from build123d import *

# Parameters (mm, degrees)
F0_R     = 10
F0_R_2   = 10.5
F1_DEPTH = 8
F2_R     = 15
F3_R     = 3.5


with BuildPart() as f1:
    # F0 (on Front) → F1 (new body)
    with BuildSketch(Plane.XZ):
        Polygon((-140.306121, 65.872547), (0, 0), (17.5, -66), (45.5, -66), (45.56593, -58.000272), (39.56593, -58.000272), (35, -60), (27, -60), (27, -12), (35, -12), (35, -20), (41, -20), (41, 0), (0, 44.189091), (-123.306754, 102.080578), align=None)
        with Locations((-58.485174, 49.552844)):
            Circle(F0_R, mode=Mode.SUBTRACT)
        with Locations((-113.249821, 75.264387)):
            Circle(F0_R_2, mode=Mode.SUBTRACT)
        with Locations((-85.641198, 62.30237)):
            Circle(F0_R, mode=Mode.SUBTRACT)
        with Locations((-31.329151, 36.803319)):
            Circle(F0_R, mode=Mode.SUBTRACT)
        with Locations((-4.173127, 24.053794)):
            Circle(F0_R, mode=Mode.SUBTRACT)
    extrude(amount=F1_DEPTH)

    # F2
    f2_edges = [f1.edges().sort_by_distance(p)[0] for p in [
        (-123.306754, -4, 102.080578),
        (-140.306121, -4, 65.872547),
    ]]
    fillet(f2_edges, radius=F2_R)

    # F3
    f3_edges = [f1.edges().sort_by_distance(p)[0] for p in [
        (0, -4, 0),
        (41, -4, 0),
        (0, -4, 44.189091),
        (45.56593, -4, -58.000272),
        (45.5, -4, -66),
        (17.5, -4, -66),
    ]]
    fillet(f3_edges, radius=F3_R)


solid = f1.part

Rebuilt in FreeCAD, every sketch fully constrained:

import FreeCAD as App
import Part
import Sketcher
from FreeCAD import Vector
Q = App.Units.Quantity


def edges_at(feature, points):
    """Names of the edges that pass closest to the given points."""
    edges = feature.Shape.Edges
    near = lambda p: min(range(len(edges)), key=lambda i: edges[i].distToShape(Part.Vertex(*p))[0])
    return sorted({f"Edge{near(p) + 1}" for p in points})

doc = App.newDocument("Part")
body = doc.addObject("PartDesign::Body", "Body")

# Sketch on XZ plane
sketch1 = body.newObject("Sketcher::SketchObject", "Sketch")
sketch1.AttachmentSupport = (doc.getObject("XZ_Plane"), [""])
sketch1.MapMode = "FlatFace"
sketch1.addGeometry(Part.LineSegment(Vector(-140.306121, 65.872547, 0), Vector(0, 0, 0)), False)
sketch1.addGeometry(Part.LineSegment(Vector(0, 0, 0), Vector(17.5, -66, 0)), False)
sketch1.addGeometry(Part.LineSegment(Vector(17.5, -66, 0), Vector(45.5, -66, 0)), False)
sketch1.addGeometry(Part.LineSegment(Vector(45.5, -66, 0), Vector(45.56593, -58.000272, 0)), False)
sketch1.addGeometry(Part.LineSegment(Vector(45.56593, -58.000272, 0), Vector(39.56593, -58.000272, 0)), False)
sketch1.addGeometry(Part.LineSegment(Vector(39.56593, -58.000272, 0), Vector(35, -60, 0)), False)
sketch1.addGeometry(Part.LineSegment(Vector(35, -60, 0), Vector(27, -60, 0)), False)
sketch1.addGeometry(Part.LineSegment(Vector(27, -60, 0), Vector(27, -12, 0)), False)
sketch1.addGeometry(Part.LineSegment(Vector(27, -12, 0), Vector(35, -12, 0)), False)
sketch1.addGeometry(Part.LineSegment(Vector(35, -12, 0), Vector(35, -20, 0)), False)
sketch1.addGeometry(Part.LineSegment(Vector(35, -20, 0), Vector(41, -20, 0)), False)
sketch1.addGeometry(Part.LineSegment(Vector(41, -20, 0), Vector(41, 0, 0)), False)
sketch1.addGeometry(Part.LineSegment(Vector(41, 0, 0), Vector(0, 44.189091, 0)), False)
sketch1.addGeometry(Part.LineSegment(Vector(0, 44.189091, 0), Vector(-123.306754, 102.080578, 0)), False)
sketch1.addGeometry(Part.LineSegment(Vector(-123.306754, 102.080578, 0), Vector(-140.306121, 65.872547, 0)), False)
sketch1.addGeometry(Part.Circle(Vector(-4.173127, 24.053794, 0), Vector(0, 0, 1), 10), False)
sketch1.addGeometry(Part.Circle(Vector(-31.329151, 36.803319, 0), Vector(0, 0, 1), 10), False)
sketch1.addGeometry(Part.Circle(Vector(-58.485174, 49.552844, 0), Vector(0, 0, 1), 10), False)
sketch1.addGeometry(Part.Circle(Vector(-85.641198, 62.30237, 0), Vector(0, 0, 1), 10), False)
sketch1.addGeometry(Part.Circle(Vector(-113.249821, 75.264387, 0), Vector(0, 0, 1), 10.5), False)
sketch1.addConstraint(Sketcher.Constraint("Coincident", 0, 2, 1, 1))
sketch1.addConstraint(Sketcher.Constraint("Coincident", 1, 2, 2, 1))
sketch1.addConstraint(Sketcher.Constraint("Coincident", 2, 2, 3, 1))
sketch1.addConstraint(Sketcher.Constraint("Coincident", 3, 2, 4, 1))
sketch1.addConstraint(Sketcher.Constraint("Coincident", 4, 2, 5, 1))
sketch1.addConstraint(Sketcher.Constraint("Coincident", 5, 2, 6, 1))
sketch1.addConstraint(Sketcher.Constraint("Coincident", 6, 2, 7, 1))
sketch1.addConstraint(Sketcher.Constraint("Coincident", 7, 2, 8, 1))
sketch1.addConstraint(Sketcher.Constraint("Coincident", 8, 2, 9, 1))
sketch1.addConstraint(Sketcher.Constraint("Coincident", 9, 2, 10, 1))
sketch1.addConstraint(Sketcher.Constraint("Coincident", 10, 2, 11, 1))
sketch1.addConstraint(Sketcher.Constraint("Coincident", 11, 2, 12, 1))
sketch1.addConstraint(Sketcher.Constraint("Coincident", 12, 2, 13, 1))
sketch1.addConstraint(Sketcher.Constraint("Coincident", 13, 2, 14, 1))
sketch1.addConstraint(Sketcher.Constraint("Coincident", 14, 2, 0, 1))
sketch1.addConstraint(Sketcher.Constraint("Horizontal", 2))
sketch1.addConstraint(Sketcher.Constraint("Horizontal", 4))
sketch1.addConstraint(Sketcher.Constraint("Horizontal", 6))
sketch1.addConstraint(Sketcher.Constraint("Vertical", 7))
sketch1.addConstraint(Sketcher.Constraint("Horizontal", 8))
sketch1.addConstraint(Sketcher.Constraint("Vertical", 9))
sketch1.addConstraint(Sketcher.Constraint("Horizontal", 10))
sketch1.addConstraint(Sketcher.Constraint("Vertical", 11))
sketch1.addConstraint(Sketcher.Constraint("Coincident", 0, 2, -1, 1))
sketch1.addConstraint(Sketcher.Constraint("Equal", 15, 16))
sketch1.addConstraint(Sketcher.Constraint("Equal", 16, 17))
sketch1.addConstraint(Sketcher.Constraint("Equal", 17, 18))
sketch1.addConstraint(Sketcher.Constraint("PointOnObject", 11, 2, -1))
sketch1.addConstraint(Sketcher.Constraint("PointOnObject", 12, 2, -2))
sketch1.addConstraint(Sketcher.Constraint("Parallel", 0, 13))
sketch1.addConstraint(Sketcher.Constraint("Perpendicular", 13, 14))
sketch1.addConstraint(Sketcher.Constraint("Vertical", 5, 2, 8, 2))
sketch1.addConstraint(Sketcher.Constraint("Equal", 4, 10))
sketch1.addConstraint(Sketcher.Constraint("Equal", 8, 9))
sketch1.addConstraint(Sketcher.Constraint("Diameter", 15, Q("20 mm")))
sketch1.addConstraint(Sketcher.Constraint("Diameter", 19, Q("21 mm")))
sketch1.addConstraint(Sketcher.Constraint("DistanceX", 2, 1, 2, 2, Q("28 mm")))
sketch1.addConstraint(Sketcher.Constraint("DistanceX", 4, 2, 4, 1, Q("6 mm")))
sketch1.addConstraint(Sketcher.Constraint("DistanceX", 6, 2, 6, 1, Q("8 mm")))
sketch1.addConstraint(Sketcher.Constraint("DistanceY", 7, 1, 7, 2, Q("48 mm")))
sketch1.addConstraint(Sketcher.Constraint("DistanceY", 11, 1, 11, 2, Q("20 mm")))
sketch1.addConstraint(Sketcher.Constraint("Distance", 0, Q("155 mm")))
sketch1.addConstraint(Sketcher.Constraint("Distance", 3, Q("8 mm")))
sketch1.addConstraint(Sketcher.Constraint("Distance", 14, Q("40 mm")))
sketch1.addConstraint(Sketcher.Constraint("DistanceY", 1, 2, -1, 1, Q("66 mm")))
sketch1.addConstraint(Sketcher.Constraint("DistanceX", -1, 1, 5, 2, Q("35 mm")))
sketch1.addConstraint(Sketcher.Constraint("DistanceX", -1, 1, 1, 2, Q("17.5 mm")))
sketch1.addConstraint(Sketcher.Constraint("DistanceX", 18, 3, -1, 1, Q("85.641198 mm")))
sketch1.addConstraint(Sketcher.Constraint("DistanceX", 14, 2, 19, 3, Q("27.0563 mm")))
sketch1.addConstraint(Sketcher.Constraint("Distance", 5, Q("4.984639 mm")))
sketch1.addConstraint(Sketcher.Constraint("Distance", 12, Q("60.279978 mm")))
sketch1.addConstraint(Sketcher.Constraint("DistanceX", 16, 3, -1, 1, Q("31.329151 mm")))
sketch1.addConstraint(Sketcher.Constraint("DistanceY", -1, 1, 16, 3, Q("36.803319 mm")))
sketch1.addConstraint(Sketcher.Constraint("DistanceY", -1, 1, 18, 3, Q("62.30237 mm")))
sketch1.addConstraint(Sketcher.Constraint("DistanceY", 15, 3, 17, 3, Q("25.49905 mm")))
sketch1.addConstraint(Sketcher.Constraint("DistanceX", 18, 3, 15, 3, Q("81.468071 mm")))
sketch1.addConstraint(Sketcher.Constraint("DistanceY", 19, 3, 13, 2, Q("26.816191 mm")))
sketch1.addConstraint(Sketcher.Constraint("DistanceX", 13, 2, 17, 3, Q("64.82158 mm")))
sketch1.addConstraint(Sketcher.Constraint("DistanceY", -1, 1, 15, 3, Q("24.053794 mm")))
pad1 = body.newObject("PartDesign::Pad", "Pad")
pad1.Profile = sketch1
pad1.Length = 8
doc.recompute()

fillet = body.newObject("PartDesign::Fillet", "Fillet")
fillet.Base = (pad1, edges_at(pad1, [(-123.307, -4, 102.081), (-140.306, -4, 65.873)]))
fillet.Radius = 15
doc.recompute()

fillet2 = body.newObject("PartDesign::Fillet", "Fillet001")
fillet2.Base = (fillet, edges_at(fillet, [
    (0, -4, 0),
    (41, -4, 0),
    (0, -4, 44.189),
    (45.566, -4, -58),
    (45.5, -4, -66),
    (17.5, -4, -66),
]))
fillet2.Radius = 3.5

doc.recompute()
